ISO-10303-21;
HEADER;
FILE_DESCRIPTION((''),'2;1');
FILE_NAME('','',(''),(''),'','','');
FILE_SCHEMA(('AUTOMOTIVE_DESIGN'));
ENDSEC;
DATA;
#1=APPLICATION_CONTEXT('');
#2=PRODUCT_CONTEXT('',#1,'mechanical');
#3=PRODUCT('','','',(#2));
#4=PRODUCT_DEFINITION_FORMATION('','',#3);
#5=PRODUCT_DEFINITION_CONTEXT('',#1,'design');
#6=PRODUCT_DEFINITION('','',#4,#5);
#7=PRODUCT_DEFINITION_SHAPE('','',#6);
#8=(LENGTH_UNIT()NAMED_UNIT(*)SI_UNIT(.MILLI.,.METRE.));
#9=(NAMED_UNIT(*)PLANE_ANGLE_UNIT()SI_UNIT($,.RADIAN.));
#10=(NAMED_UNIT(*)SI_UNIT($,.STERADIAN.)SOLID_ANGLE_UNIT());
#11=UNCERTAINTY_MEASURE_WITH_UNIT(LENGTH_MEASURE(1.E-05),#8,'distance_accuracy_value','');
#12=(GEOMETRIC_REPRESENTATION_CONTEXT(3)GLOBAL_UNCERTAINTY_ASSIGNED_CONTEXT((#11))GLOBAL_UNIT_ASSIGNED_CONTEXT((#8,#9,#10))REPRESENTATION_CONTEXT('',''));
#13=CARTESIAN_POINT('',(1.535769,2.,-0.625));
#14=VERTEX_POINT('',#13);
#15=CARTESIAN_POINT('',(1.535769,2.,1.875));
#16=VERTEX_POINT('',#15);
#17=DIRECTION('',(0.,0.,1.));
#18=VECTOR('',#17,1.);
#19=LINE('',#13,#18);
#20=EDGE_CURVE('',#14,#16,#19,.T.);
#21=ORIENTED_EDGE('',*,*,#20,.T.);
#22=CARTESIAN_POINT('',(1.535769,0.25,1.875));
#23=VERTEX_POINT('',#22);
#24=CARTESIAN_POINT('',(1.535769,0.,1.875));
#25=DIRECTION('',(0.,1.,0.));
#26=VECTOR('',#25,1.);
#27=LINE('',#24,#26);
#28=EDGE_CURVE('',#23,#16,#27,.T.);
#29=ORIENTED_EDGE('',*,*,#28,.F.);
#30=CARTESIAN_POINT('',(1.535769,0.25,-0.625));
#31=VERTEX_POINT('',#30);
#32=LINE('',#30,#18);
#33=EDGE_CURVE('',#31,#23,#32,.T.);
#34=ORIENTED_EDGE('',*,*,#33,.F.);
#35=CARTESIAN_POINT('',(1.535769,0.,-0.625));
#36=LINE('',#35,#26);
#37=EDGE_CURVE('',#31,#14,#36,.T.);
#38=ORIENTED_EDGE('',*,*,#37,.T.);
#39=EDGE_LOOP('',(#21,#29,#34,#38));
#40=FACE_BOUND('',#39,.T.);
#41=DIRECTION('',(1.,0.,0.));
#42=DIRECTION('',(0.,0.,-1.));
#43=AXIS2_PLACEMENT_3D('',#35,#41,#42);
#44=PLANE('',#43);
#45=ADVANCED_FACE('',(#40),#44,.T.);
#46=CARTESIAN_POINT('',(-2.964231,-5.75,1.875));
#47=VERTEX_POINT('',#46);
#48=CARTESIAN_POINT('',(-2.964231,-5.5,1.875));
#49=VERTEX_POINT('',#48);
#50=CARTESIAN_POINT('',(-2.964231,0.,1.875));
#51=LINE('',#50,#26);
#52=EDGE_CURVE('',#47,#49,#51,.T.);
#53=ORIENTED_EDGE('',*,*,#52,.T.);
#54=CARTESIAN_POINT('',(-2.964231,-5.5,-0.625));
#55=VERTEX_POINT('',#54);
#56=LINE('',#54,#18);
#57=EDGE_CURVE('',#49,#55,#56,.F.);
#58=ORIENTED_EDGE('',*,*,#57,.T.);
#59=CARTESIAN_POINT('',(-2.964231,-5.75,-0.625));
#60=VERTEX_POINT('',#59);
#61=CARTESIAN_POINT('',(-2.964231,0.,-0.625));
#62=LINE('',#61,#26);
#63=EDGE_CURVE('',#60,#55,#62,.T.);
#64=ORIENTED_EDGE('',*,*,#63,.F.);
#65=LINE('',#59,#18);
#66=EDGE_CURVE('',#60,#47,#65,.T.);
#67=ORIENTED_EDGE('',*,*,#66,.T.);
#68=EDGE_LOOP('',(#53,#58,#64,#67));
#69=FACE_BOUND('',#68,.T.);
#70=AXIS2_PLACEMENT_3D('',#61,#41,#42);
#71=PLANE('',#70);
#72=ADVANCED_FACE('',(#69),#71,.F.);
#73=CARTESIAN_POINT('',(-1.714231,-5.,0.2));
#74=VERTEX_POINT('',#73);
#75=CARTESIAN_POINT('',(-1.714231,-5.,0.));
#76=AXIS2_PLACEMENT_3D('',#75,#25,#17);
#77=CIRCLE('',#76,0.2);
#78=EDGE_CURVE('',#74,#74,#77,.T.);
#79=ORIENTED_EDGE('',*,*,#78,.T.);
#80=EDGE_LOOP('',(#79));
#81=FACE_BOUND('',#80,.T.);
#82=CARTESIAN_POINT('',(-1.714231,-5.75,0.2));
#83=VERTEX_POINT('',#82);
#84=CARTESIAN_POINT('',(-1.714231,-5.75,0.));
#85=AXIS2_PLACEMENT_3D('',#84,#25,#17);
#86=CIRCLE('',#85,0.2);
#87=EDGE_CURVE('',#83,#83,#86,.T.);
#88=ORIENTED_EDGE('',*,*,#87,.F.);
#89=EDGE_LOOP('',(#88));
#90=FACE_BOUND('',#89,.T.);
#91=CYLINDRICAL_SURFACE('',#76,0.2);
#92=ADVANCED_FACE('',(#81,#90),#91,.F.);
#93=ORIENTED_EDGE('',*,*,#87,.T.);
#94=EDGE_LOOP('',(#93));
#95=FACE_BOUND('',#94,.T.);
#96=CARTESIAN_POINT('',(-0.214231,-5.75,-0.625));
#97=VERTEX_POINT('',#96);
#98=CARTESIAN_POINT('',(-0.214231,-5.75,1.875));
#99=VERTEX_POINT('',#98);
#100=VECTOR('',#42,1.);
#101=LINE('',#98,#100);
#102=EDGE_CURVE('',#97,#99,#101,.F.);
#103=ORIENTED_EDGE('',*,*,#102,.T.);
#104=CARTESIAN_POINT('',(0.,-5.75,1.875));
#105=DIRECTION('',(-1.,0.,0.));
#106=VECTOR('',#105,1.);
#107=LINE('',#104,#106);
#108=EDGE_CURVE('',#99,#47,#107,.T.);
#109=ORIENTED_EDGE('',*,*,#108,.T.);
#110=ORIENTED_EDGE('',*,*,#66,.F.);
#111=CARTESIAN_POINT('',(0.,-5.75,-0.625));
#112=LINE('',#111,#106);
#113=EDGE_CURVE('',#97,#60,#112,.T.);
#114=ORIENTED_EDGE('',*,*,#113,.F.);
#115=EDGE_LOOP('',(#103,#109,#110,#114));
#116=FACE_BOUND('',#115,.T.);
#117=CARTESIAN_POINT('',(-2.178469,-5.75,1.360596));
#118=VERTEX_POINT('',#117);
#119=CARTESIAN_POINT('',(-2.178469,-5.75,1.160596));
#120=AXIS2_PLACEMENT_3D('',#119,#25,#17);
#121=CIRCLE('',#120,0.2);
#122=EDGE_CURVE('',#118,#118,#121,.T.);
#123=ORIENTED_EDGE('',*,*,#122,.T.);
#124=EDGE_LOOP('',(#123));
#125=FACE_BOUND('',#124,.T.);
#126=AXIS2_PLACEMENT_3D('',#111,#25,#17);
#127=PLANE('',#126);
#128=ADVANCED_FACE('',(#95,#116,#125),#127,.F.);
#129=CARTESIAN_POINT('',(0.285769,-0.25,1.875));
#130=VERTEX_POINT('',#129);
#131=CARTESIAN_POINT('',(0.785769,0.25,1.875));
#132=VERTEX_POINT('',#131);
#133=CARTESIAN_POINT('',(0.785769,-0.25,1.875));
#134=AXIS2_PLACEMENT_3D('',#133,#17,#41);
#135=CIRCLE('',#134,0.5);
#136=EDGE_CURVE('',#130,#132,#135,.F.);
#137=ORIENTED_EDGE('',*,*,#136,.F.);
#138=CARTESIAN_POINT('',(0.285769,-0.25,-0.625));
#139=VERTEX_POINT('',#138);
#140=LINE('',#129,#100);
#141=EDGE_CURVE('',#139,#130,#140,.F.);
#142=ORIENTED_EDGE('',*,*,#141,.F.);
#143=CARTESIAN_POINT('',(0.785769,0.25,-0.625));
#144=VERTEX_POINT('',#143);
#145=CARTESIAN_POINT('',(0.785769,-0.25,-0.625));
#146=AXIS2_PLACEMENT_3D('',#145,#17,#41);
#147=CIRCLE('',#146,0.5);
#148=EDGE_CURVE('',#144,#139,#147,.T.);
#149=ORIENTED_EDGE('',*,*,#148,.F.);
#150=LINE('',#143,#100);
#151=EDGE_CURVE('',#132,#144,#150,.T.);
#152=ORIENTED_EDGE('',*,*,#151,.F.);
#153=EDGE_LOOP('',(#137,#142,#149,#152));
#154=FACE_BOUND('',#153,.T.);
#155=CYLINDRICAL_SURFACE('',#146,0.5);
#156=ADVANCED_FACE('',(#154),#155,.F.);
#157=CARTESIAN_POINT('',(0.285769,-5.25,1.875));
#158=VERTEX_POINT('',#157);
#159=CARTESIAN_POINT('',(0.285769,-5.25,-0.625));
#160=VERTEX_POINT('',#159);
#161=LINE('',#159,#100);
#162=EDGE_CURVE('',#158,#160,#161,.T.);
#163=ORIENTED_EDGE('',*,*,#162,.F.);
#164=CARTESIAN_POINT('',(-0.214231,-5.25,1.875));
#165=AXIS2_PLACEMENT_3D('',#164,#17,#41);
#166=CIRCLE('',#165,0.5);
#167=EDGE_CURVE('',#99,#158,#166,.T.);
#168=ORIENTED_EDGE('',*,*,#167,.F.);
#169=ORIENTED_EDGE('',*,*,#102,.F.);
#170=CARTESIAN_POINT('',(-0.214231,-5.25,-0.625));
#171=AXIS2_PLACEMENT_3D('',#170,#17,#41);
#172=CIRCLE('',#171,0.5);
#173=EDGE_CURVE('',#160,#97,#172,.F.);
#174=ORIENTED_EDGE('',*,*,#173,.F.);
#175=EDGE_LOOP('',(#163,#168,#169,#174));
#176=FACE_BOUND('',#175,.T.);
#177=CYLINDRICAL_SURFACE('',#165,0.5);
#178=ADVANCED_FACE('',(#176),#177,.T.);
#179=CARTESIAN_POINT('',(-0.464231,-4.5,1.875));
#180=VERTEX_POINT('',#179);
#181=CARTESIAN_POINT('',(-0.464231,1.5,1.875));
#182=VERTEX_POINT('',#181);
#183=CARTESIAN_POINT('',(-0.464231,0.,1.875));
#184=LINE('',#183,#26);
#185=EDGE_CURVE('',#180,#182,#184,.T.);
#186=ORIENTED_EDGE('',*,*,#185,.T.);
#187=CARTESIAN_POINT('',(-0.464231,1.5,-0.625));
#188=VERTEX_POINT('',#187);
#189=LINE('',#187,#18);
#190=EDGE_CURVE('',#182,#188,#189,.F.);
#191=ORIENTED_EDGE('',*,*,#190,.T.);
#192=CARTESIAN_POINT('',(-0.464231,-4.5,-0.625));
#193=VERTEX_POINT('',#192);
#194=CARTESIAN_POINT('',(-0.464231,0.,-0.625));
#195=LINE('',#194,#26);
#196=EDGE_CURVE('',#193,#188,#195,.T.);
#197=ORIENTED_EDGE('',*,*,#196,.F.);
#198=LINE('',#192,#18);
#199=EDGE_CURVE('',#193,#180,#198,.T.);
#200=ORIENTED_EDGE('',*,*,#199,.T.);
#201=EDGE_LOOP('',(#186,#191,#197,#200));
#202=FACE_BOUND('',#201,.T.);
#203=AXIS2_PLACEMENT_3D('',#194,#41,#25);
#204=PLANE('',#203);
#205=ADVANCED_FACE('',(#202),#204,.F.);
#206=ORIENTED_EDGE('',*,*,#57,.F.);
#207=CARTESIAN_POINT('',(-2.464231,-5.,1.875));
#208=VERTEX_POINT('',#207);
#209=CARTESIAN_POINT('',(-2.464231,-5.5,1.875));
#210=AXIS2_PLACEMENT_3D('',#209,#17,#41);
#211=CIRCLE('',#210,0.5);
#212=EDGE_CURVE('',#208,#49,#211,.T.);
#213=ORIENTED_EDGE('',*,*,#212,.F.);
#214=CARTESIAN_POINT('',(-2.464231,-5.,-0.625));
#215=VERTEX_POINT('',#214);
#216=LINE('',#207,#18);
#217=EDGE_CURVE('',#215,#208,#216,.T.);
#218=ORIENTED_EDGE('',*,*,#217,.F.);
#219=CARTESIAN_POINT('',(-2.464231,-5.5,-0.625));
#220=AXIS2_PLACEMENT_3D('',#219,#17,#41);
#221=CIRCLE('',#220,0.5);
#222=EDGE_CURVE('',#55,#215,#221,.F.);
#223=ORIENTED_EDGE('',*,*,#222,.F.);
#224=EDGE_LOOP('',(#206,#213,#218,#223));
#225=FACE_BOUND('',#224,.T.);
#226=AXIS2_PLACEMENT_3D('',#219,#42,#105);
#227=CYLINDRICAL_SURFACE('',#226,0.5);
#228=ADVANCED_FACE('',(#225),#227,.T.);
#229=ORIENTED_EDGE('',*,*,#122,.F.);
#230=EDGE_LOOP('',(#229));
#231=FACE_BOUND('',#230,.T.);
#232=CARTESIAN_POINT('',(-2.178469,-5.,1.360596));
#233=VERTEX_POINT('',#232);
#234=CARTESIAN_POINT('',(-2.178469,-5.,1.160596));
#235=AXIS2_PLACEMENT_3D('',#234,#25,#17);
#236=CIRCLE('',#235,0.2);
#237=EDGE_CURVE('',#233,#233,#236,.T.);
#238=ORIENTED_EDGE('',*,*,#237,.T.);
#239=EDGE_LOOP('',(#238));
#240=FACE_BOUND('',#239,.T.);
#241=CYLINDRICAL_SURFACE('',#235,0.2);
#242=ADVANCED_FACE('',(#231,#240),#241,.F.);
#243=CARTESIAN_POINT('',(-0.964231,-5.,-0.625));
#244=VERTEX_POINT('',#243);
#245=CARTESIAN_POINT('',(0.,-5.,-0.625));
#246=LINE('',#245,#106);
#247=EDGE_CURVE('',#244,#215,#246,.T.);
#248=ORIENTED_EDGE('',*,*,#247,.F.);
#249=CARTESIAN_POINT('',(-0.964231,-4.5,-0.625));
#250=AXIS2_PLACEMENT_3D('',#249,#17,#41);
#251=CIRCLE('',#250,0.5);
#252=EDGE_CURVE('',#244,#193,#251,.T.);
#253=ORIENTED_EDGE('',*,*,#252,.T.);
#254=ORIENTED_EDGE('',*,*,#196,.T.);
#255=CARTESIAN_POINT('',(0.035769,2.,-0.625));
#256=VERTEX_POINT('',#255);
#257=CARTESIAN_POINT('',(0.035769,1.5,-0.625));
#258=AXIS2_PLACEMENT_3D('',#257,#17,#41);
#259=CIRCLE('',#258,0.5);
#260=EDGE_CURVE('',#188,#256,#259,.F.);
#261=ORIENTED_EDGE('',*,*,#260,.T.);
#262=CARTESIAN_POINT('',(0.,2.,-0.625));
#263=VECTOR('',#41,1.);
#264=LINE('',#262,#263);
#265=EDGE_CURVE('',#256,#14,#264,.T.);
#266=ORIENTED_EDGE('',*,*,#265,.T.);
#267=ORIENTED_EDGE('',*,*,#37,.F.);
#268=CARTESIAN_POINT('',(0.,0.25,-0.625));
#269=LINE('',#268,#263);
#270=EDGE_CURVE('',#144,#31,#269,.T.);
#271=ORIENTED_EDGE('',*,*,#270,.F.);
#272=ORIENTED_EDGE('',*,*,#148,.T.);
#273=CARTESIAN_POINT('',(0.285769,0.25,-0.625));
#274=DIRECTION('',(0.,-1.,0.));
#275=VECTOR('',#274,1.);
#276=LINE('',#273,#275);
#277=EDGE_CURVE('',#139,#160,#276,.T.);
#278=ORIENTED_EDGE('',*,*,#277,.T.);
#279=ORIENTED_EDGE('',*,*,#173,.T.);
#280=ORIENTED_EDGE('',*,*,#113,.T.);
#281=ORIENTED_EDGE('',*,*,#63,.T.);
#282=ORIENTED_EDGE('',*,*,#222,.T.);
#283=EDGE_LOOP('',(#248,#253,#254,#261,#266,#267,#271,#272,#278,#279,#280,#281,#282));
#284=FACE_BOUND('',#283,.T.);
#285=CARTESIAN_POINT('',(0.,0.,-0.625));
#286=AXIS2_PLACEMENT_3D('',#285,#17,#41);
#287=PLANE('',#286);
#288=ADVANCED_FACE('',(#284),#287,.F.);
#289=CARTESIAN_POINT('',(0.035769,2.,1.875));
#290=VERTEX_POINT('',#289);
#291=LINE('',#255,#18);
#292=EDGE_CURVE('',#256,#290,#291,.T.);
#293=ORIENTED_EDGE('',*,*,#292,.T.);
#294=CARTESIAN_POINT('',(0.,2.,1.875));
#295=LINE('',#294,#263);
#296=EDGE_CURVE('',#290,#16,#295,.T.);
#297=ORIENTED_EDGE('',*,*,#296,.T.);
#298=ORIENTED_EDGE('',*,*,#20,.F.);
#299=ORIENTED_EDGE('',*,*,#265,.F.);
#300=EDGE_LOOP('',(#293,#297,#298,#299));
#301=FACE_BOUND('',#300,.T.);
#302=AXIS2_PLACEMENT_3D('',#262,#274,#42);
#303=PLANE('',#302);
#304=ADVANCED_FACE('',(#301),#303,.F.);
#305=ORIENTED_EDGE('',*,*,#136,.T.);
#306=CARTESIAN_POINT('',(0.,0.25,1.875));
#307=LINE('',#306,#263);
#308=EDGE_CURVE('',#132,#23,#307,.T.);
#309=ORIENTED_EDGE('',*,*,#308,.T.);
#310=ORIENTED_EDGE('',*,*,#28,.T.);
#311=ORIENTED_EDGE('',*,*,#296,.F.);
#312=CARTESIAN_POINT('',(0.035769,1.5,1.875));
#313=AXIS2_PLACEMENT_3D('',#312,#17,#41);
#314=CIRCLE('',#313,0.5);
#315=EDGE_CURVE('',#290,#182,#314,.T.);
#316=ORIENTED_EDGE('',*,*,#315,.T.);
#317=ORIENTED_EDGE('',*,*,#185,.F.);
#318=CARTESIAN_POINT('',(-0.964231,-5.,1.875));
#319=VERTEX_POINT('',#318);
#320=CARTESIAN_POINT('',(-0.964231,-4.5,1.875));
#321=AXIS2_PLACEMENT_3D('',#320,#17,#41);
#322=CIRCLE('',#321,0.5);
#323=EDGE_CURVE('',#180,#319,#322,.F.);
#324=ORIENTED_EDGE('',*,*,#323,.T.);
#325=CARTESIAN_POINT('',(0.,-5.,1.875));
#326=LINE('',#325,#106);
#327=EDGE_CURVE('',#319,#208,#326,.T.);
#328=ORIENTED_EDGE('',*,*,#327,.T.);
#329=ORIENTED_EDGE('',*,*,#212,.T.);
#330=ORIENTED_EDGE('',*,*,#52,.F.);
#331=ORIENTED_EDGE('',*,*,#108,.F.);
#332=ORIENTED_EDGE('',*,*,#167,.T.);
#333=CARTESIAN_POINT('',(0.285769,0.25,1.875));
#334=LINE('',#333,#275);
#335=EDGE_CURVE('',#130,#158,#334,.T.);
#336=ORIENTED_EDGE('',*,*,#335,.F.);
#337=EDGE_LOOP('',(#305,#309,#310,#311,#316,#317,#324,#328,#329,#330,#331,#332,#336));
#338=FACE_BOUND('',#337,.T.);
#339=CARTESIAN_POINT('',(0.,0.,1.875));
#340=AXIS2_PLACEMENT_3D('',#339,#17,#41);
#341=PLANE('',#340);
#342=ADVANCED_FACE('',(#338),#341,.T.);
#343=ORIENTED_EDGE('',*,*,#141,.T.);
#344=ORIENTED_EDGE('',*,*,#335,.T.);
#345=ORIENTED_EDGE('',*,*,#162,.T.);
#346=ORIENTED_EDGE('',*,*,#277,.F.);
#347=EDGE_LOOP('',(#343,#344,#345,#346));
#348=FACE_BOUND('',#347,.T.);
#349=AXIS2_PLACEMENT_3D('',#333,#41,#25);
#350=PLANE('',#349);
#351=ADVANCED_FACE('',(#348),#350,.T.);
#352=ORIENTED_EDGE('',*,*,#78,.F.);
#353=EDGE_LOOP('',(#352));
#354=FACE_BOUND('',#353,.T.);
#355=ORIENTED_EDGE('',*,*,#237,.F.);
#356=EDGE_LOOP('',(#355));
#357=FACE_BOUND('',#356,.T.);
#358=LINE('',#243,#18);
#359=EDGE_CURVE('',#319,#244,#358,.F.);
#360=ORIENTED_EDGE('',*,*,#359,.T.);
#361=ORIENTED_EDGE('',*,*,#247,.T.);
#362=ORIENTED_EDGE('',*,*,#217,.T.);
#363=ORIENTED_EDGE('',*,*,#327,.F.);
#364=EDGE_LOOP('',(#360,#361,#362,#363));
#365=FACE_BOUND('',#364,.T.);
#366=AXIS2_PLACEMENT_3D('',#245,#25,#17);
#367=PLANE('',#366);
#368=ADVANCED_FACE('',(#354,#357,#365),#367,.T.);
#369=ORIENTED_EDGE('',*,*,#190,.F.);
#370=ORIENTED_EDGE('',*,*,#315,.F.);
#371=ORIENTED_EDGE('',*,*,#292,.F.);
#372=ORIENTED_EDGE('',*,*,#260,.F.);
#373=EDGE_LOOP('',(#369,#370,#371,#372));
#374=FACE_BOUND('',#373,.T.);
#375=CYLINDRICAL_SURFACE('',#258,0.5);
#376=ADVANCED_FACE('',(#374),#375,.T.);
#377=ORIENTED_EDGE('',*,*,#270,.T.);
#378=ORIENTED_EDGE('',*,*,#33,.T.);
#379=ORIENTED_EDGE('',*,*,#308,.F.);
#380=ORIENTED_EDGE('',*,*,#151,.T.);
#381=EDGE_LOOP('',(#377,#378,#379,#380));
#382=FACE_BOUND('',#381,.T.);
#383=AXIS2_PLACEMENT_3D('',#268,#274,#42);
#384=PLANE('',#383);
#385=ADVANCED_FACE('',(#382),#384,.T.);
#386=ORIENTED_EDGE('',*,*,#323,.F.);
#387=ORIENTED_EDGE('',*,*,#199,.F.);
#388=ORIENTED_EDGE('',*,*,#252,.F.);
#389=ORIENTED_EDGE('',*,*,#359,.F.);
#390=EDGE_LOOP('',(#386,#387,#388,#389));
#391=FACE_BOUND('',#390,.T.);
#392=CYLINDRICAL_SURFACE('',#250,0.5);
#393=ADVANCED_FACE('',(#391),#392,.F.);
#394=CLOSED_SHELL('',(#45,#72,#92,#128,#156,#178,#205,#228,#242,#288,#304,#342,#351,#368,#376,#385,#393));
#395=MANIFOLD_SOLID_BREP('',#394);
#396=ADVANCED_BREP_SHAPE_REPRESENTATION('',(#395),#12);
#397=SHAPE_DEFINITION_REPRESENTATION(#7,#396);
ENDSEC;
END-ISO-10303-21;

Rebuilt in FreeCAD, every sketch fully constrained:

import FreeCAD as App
import Part
import Sketcher
Q = App.Units.Quantity


def edges_at(feature, points):
    """Names of the edges that pass closest to the given points."""
    edges = feature.Shape.Edges
    near = lambda p: min(range(len(edges)), key=lambda i: edges[i].distToShape(Part.Vertex(*p))[0])
    return sorted({f"Edge{near(p) + 1}" for p in points})


def add_polygon(sketch, points):
    """Adds a closed chain of lines whose ends are joined by coincident constraints."""
    first, n = sketch.GeometryCount, len(points)
    for a, b in zip(points, points[1:] + points[:1]):
        sketch.addGeometry(Part.LineSegment(App.Vector(*a, 0), App.Vector(*b, 0)), False)
    for i in range(n):
        sketch.addConstraint(Sketcher.Constraint("Coincident", first + i, 2, first + (i + 1) % n, 1))

doc = App.newDocument("Part")
body = doc.addObject("PartDesign::Body", "Body")

# Sketch on XY plane
sketch1 = body.newObject("Sketcher::SketchObject", "Sketch")
sketch1.AttachmentSupport = (doc.getObject("XY_Plane"), [""])
sketch1.MapMode = "FlatFace"
add_polygon(sketch1, [(0.285769, -5.75), (0.285769, 0.25), (1.535769, 0.25), (1.535769, 2), (-0.464231, 2), (-0.464231, -5), (-2.964231, -5), (-2.964231, -5.75)])  # lines 0-7
sketch1.addConstraint(Sketcher.Constraint("Vertical", 0))
sketch1.addConstraint(Sketcher.Constraint("Horizontal", 1))
sketch1.addConstraint(Sketcher.Constraint("Vertical", 2))
sketch1.addConstraint(Sketcher.Constraint("Horizontal", 3))
sketch1.addConstraint(Sketcher.Constraint("Vertical", 4))
sketch1.addConstraint(Sketcher.Constraint("Horizontal", 5))
sketch1.addConstraint(Sketcher.Constraint("Vertical", 6))
sketch1.addConstraint(Sketcher.Constraint("Horizontal", 7))
sketch1.addConstraint(Sketcher.Constraint("DistanceX", 3, 2, 3, 1, Q("2 mm")))
sketch1.addConstraint(Sketcher.Constraint("DistanceY", 0, 1, 0, 2, Q("6 mm")))
sketch1.addConstraint(Sketcher.Constraint("DistanceY", 4, 2, 4, 1, Q("7 mm")))
sketch1.addConstraint(Sketcher.Constraint("DistanceX", 5, 2, 5, 1, Q("2.5 mm")))
sketch1.addConstraint(Sketcher.Constraint("DistanceY", -1, 1, 2, 2, Q("2 mm")))
sketch1.addConstraint(Sketcher.Constraint("DistanceX", 1, 1, 1, 2, Q("1.25 mm")))
sketch1.addConstraint(Sketcher.Constraint("DistanceY", 2, 1, 2, 2, Q("1.75 mm")))
sketch1.addConstraint(Sketcher.Constraint("DistanceX", -1, 1, 0, 2, Q("0.285769 mm")))
pad1 = body.newObject("PartDesign::Pad", "Pad")
pad1.Profile = sketch1
pad1.Type = "TwoLengths"
pad1.Length = 1.875
pad1.Length2 = 0.625
doc.recompute()

fillet = body.newObject("PartDesign::Fillet", "Fillet")
fillet.Base = (pad1, edges_at(pad1, [
    (0.286, 0.25, 0.625),
    (-2.964, -5, 0.625),
    (-0.464, -5, 0.625),
    (0.286, -5.75, 0.625),
    (-0.464, 2, 0.625),
]))
fillet.Radius = 0.5

# Sketch on XZ plane
sketch2 = body.newObject("Sketcher::SketchObject", "Sketch001")
sketch2.AttachmentSupport = (doc.getObject("XZ_Plane"), [""])
sketch2.MapMode = "FlatFace"
sketch2.AttachmentOffset = App.Placement(App.Vector(0, 0, 5), App.Rotation())
sketch2.addGeometry(Part.Circle(App.Vector(-1.714231, 0, 0), App.Vector(0, 0, 1), 0.2), False)
sketch2.addGeometry(Part.Circle(App.Vector(-2.178469, 1.160596, 0), App.Vector(0, 0, 1), 0.2), False)
sketch2.addConstraint(Sketcher.Constraint("Equal", 0, 1))
sketch2.addConstraint(Sketcher.Constraint("PointOnObject", 0, 3, -1))
sketch2.addConstraint(Sketcher.Constraint("Diameter", 0, Q("0.4 mm")))
sketch2.addConstraint(Sketcher.Constraint("DistanceX", 0, 3, -1, 1, Q("1.714231 mm")))
sketch2.addConstraint(Sketcher.Constraint("DistanceX", 1, 3, -1, 1, Q("2.178469 mm")))
sketch2.addConstraint(Sketcher.Constraint("DistanceY", -1, 1, 1, 3, Q("1.160596 mm")))
doc.recompute()
hole = body.newObject("PartDesign::Hole", "Hole")
hole.Profile = sketch2
hole.ThreadType = "None"
hole.Diameter = 0.4
hole.DepthType = "ThroughAll"
hole.Reversed = True

doc.recompute()
